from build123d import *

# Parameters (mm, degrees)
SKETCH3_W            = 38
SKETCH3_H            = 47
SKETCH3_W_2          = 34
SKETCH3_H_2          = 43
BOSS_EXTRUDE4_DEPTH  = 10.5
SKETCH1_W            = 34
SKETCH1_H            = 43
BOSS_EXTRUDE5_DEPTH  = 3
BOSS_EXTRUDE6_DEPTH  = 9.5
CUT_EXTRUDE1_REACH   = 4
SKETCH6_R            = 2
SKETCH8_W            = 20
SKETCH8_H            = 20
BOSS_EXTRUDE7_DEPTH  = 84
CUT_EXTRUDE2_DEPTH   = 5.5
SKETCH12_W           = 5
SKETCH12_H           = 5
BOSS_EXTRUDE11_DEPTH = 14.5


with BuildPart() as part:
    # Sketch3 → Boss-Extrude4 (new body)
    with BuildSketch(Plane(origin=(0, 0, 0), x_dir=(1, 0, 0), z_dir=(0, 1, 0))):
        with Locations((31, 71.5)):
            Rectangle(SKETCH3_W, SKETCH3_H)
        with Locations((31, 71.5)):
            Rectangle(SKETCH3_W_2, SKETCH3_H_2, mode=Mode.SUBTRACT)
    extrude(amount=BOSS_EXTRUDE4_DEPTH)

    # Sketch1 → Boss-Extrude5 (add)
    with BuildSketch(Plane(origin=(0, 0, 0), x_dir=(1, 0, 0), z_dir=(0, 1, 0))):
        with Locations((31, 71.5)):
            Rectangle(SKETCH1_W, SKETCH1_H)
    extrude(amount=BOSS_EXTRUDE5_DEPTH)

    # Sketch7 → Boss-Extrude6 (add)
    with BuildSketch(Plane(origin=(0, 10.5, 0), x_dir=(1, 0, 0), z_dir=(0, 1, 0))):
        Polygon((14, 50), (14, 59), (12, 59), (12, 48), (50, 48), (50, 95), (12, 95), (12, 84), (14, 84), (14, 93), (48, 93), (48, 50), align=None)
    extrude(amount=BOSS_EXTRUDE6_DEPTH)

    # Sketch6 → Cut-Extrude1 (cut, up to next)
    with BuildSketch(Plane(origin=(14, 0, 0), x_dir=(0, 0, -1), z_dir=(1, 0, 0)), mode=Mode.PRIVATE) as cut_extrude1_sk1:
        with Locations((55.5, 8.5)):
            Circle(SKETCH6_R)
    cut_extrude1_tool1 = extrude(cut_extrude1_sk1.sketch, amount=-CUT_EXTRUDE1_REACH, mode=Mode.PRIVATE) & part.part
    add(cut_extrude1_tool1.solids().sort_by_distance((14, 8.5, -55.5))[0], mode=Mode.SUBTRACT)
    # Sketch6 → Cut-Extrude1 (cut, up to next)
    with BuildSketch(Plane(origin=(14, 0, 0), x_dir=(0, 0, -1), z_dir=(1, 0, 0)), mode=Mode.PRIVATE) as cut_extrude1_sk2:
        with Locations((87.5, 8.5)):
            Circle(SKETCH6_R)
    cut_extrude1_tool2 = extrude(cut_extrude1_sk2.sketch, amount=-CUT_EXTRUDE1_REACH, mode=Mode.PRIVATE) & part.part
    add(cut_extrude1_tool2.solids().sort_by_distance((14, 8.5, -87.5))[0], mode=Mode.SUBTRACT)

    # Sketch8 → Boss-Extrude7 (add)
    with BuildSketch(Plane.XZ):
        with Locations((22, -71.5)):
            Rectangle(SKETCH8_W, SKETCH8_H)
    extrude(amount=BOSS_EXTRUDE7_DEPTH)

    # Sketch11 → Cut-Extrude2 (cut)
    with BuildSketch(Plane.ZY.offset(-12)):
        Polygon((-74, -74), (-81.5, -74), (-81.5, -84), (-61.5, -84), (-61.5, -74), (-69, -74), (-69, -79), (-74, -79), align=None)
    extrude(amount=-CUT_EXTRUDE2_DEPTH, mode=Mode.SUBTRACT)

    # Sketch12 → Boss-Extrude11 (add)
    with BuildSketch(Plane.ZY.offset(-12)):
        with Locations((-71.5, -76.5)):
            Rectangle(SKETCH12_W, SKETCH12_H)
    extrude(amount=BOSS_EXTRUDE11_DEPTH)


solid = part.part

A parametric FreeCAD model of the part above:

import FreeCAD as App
import Part
import Sketcher
from FreeCAD import Vector
Q = App.Units.Quantity


def add_polygon(sketch, points):
    """Adds a closed chain of lines whose ends are joined by coincident constraints."""
    first, n = sketch.GeometryCount, len(points)
    for a, b in zip(points, points[1:] + points[:1]):
        sketch.addGeometry(Part.LineSegment(App.Vector(*a, 0), App.Vector(*b, 0)), False)
    for i in range(n):
        sketch.addConstraint(Sketcher.Constraint("Coincident", first + i, 2, first + (i + 1) % n, 1))

doc = App.newDocument("Part")
body = doc.addObject("PartDesign::Body", "Body")

# Sketch on XZ plane
sketch1 = body.newObject("Sketcher::SketchObject", "Sketch")
sketch1.AttachmentSupport = (doc.getObject("XZ_Plane"), [""])
sketch1.MapMode = "FlatFace"
add_polygon(sketch1, [(12, -95), (12, -48), (50, -48), (50, -95)])  # lines 0-3
add_polygon(sketch1, [(48, -50), (14, -50), (14, -93), (48, -93)])  # lines 4-7
sketch1.addConstraint(Sketcher.Constraint("Vertical", 0))
sketch1.addConstraint(Sketcher.Constraint("Horizontal", 1))
sketch1.addConstraint(Sketcher.Constraint("Vertical", 2))
sketch1.addConstraint(Sketcher.Constraint("Horizontal", 3))
sketch1.addConstraint(Sketcher.Constraint("Horizontal", 4))
sketch1.addConstraint(Sketcher.Constraint("Vertical", 5))
sketch1.addConstraint(Sketcher.Constraint("Horizontal", 6))
sketch1.addConstraint(Sketcher.Constraint("Vertical", 7))
sketch1.addConstraint(Sketcher.Constraint("DistanceX", 1, 1, 1, 2, Q("38 mm")))
sketch1.addConstraint(Sketcher.Constraint("DistanceX", 4, 2, 4, 1, Q("34 mm")))
sketch1.addConstraint(Sketcher.Constraint("DistanceY", 0, 1, 0, 2, Q("47 mm")))
sketch1.addConstraint(Sketcher.Constraint("DistanceY", 5, 2, 5, 1, Q("43 mm")))
sketch1.addConstraint(Sketcher.Constraint("DistanceX", -1, 1, 0, 2, Q("12 mm")))
sketch1.addConstraint(Sketcher.Constraint("DistanceY", 0, 2, -1, 1, Q("48 mm")))
sketch1.addConstraint(Sketcher.Constraint("DistanceX", -1, 1, 4, 2, Q("14 mm")))
sketch1.addConstraint(Sketcher.Constraint("DistanceY", 4, 2, -1, 1, Q("50 mm")))
pad1 = body.newObject("PartDesign::Pad", "Pad")
pad1.Profile = sketch1
pad1.Length = 10.5
pad1.Reversed = True

# Sketch on XZ plane
sketch2 = body.newObject("Sketcher::SketchObject", "Sketch001")
sketch2.AttachmentSupport = (doc.getObject("XZ_Plane"), [""])
sketch2.MapMode = "FlatFace"
add_polygon(sketch2, [(14, -93), (14, -50), (48, -50), (48, -93)])  # lines 0-3
sketch2.addConstraint(Sketcher.Constraint("Vertical", 0))
sketch2.addConstraint(Sketcher.Constraint("Horizontal", 1))
sketch2.addConstraint(Sketcher.Constraint("Vertical", 2))
sketch2.addConstraint(Sketcher.Constraint("Horizontal", 3))
sketch2.addConstraint(Sketcher.Constraint("DistanceX", 1, 1, 1, 2, Q("34 mm")))
sketch2.addConstraint(Sketcher.Constraint("DistanceY", 0, 1, 0, 2, Q("43 mm")))
sketch2.addConstraint(Sketcher.Constraint("DistanceX", -1, 1, 0, 2, Q("14 mm")))
sketch2.addConstraint(Sketcher.Constraint("DistanceY", 0, 2, -1, 1, Q("50 mm")))
pad2 = body.newObject("PartDesign::Pad", "Pad001")
pad2.Profile = sketch2
pad2.Length = 3
pad2.Reversed = True

# Sketch on XZ plane
sketch3 = body.newObject("Sketcher::SketchObject", "Sketch002")
sketch3.AttachmentSupport = (doc.getObject("XZ_Plane"), [""])
sketch3.MapMode = "FlatFace"
sketch3.AttachmentOffset = App.Placement(Vector(0, 0, -10.5), App.Rotation())
add_polygon(sketch3, [(14, -50), (14, -59), (12, -59), (12, -48), (50, -48), (50, -95), (12, -95), (12, -84), (14, -84), (14, -93), (48, -93), (48, -50)])  # lines 0-11
sketch3.addConstraint(Sketcher.Constraint("Vertical", 0))
sketch3.addConstraint(Sketcher.Constraint("Horizontal", 1))
sketch3.addConstraint(Sketcher.Constraint("Vertical", 2))
sketch3.addConstraint(Sketcher.Constraint("Horizontal", 3))
sketch3.addConstraint(Sketcher.Constraint("Vertical", 4))
sketch3.addConstraint(Sketcher.Constraint("Horizontal", 5))
sketch3.addConstraint(Sketcher.Constraint("Vertical", 6))
sketch3.addConstraint(Sketcher.Constraint("Horizontal", 7))
sketch3.addConstraint(Sketcher.Constraint("Vertical", 8))
sketch3.addConstraint(Sketcher.Constraint("Horizontal", 9))
sketch3.addConstraint(Sketcher.Constraint("Vertical", 10))
sketch3.addConstraint(Sketcher.Constraint("Horizontal", 11))
sketch3.addConstraint(Sketcher.Constraint("Vertical", 2, 2, 5, 2))
sketch3.addConstraint(Sketcher.Constraint("Vertical", 0, 2, 7, 2))
sketch3.addConstraint(Sketcher.Constraint("Equal", 2, 6))
sketch3.addConstraint(Sketcher.Constraint("Equal", 0, 8))
sketch3.addConstraint(Sketcher.Constraint("DistanceX", 1, 2, 1, 1, Q("2 mm")))
sketch3.addConstraint(Sketcher.Constraint("DistanceX", 3, 1, 3, 2, Q("38 mm")))
sketch3.addConstraint(Sketcher.Constraint("DistanceX", 9, 1, 9, 2, Q("34 mm")))
sketch3.addConstraint(Sketcher.Constraint("DistanceY", 0, 2, 0, 1, Q("9 mm")))
sketch3.addConstraint(Sketcher.Constraint("DistanceY", 2, 1, 2, 2, Q("11 mm")))
sketch3.addConstraint(Sketcher.Constraint("DistanceY", 4, 2, 4, 1, Q("47 mm")))
sketch3.addConstraint(Sketcher.Constraint("DistanceX", -1, 1, 0, 2, Q("14 mm")))
sketch3.addConstraint(Sketcher.Constraint("DistanceY", 0, 2, -1, 1, Q("59 mm")))
pad3 = body.newObject("PartDesign::Pad", "Pad002")
pad3.Profile = sketch3
pad3.Length = 9.5
pad3.Reversed = True

# Sketch on YZ plane
sketch4 = body.newObject("Sketcher::SketchObject", "Sketch003")
sketch4.AttachmentSupport = (doc.getObject("YZ_Plane"), [""])
sketch4.MapMode = "FlatFace"
sketch4.AttachmentOffset = App.Placement(Vector(0, 0, 14), App.Rotation())
sketch4.addGeometry(Part.Circle(Vector(8.5, -55.5, 0), Vector(0, 0, 1), 2), False)
sketch4.addConstraint(Sketcher.Constraint("Diameter", 0, Q("4 mm")))
sketch4.addConstraint(Sketcher.Constraint("DistanceX", -1, 1, 0, 3, Q("8.5 mm")))
sketch4.addConstraint(Sketcher.Constraint("DistanceY", 0, 3, -1, 1, Q("55.5 mm")))
pocket1 = body.newObject("PartDesign::Pocket", "Pocket")
pocket1.Profile = sketch4
pocket1.Type = "UpToFirst"

# Sketch on YZ plane
sketch5 = body.newObject("Sketcher::SketchObject", "Sketch004")
sketch5.AttachmentSupport = (doc.getObject("YZ_Plane"), [""])
sketch5.MapMode = "FlatFace"
sketch5.AttachmentOffset = App.Placement(Vector(0, 0, 14), App.Rotation())
sketch5.addGeometry(Part.Circle(Vector(8.5, -87.5, 0), Vector(0, 0, 1), 2), False)
sketch5.addConstraint(Sketcher.Constraint("Diameter", 0, Q("4 mm")))
sketch5.addConstraint(Sketcher.Constraint("DistanceX", -1, 1, 0, 3, Q("8.5 mm")))
sketch5.addConstraint(Sketcher.Constraint("DistanceY", 0, 3, -1, 1, Q("87.5 mm")))
pocket2 = body.newObject("PartDesign::Pocket", "Pocket001")
pocket2.Profile = sketch5
pocket2.Type = "UpToFirst"

# Sketch on XZ plane
sketch6 = body.newObject("Sketcher::SketchObject", "Sketch005")
sketch6.AttachmentSupport = (doc.getObject("XZ_Plane"), [""])
sketch6.MapMode = "FlatFace"
add_polygon(sketch6, [(12, -62), (12, -82), (32, -82), (32, -62)])  # lines 0-3
sketch6.addConstraint(Sketcher.Constraint("Vertical", 0))
sketch6.addConstraint(Sketcher.Constraint("Horizontal", 1))
sketch6.addConstraint(Sketcher.Constraint("Vertical", 2))
sketch6.addConstraint(Sketcher.Constraint("Horizontal", 3))
sketch6.addConstraint(Sketcher.Constraint("Equal", 3, 0))
sketch6.addConstraint(Sketcher.Constraint("DistanceX", 1, 1, 1, 2, Q("20 mm")))
sketch6.addConstraint(Sketcher.Constraint("DistanceX", -1, 1, 0, 2, Q("12 mm")))
sketch6.addConstraint(Sketcher.Constraint("DistanceY", 0, 2, -1, 1, Q("81.5 mm")))
pad4 = body.newObject("PartDesign::Pad", "Pad003")
pad4.Profile = sketch6
pad4.Length = 84

# Sketch on YZ plane
sketch7 = body.newObject("Sketcher::SketchObject", "Sketch006")
sketch7.AttachmentSupport = (doc.getObject("YZ_Plane"), [""])
sketch7.MapMode = "FlatFace"
sketch7.AttachmentOffset = App.Placement(Vector(0, 0, 12), App.Rotation())
add_polygon(sketch7, [(-74, -74), (-74, -82), (-84, -82), (-84, -62), (-74, -62), (-74, -69), (-79, -69), (-79, -74)])  # lines 0-7
sketch7.addConstraint(Sketcher.Constraint("Vertical", 0))
sketch7.addConstraint(Sketcher.Constraint("Horizontal", 1))
sketch7.addConstraint(Sketcher.Constraint("Vertical", 2))
sketch7.addConstraint(Sketcher.Constraint("Horizontal", 3))
sketch7.addConstraint(Sketcher.Constraint("Vertical", 4))
sketch7.addConstraint(Sketcher.Constraint("Horizontal", 5))
sketch7.addConstraint(Sketcher.Constraint("Vertical", 6))
sketch7.addConstraint(Sketcher.Constraint("Horizontal", 7))
sketch7.addConstraint(Sketcher.Constraint("Vertical", 0, 2, 3, 2))
sketch7.addConstraint(Sketcher.Constraint("Equal", 0, 4))
sketch7.addConstraint(Sketcher.Constraint("Equal", 7, 6))
sketch7.addConstraint(Sketcher.Constraint("DistanceX", 1, 2, 1, 1, Q("10 mm")))
sketch7.addConstraint(Sketcher.Constraint("DistanceX", 5, 2, 5, 1, Q("5 mm")))
sketch7.addConstraint(Sketcher.Constraint("DistanceY", 2, 1, 2, 2, Q("20 mm")))
sketch7.addConstraint(Sketcher.Constraint("DistanceX", 0, 2, -1, 1, Q("74 mm")))
sketch7.addConstraint(Sketcher.Constraint("DistanceY", 4, 2, -1, 1, Q("69 mm")))
pocket3 = body.newObject("PartDesign::Pocket", "Pocket002")
pocket3.Profile = sketch7
pocket3.Length = 5.5
pocket3.Reversed = True

# Sketch on YZ plane
sketch8 = body.newObject("Sketcher::SketchObject", "Sketch007")
sketch8.AttachmentSupport = (doc.getObject("YZ_Plane"), [""])
sketch8.MapMode = "FlatFace"
sketch8.AttachmentOffset = App.Placement(Vector(0, 0, 12), App.Rotation())
add_polygon(sketch8, [(-74, -74), (-79, -74), (-79, -69), (-74, -69)])  # lines 0-3
sketch8.addConstraint(Sketcher.Constraint("Horizontal", 0))
sketch8.addConstraint(Sketcher.Constraint("Vertical", 1))
sketch8.addConstraint(Sketcher.Constraint("Horizontal", 2))
sketch8.addConstraint(Sketcher.Constraint("Vertical", 3))
sketch8.addConstraint(Sketcher.Constraint("Equal", 2, 1))
sketch8.addConstraint(Sketcher.Constraint("DistanceX", 0, 2, 0, 1, Q("5 mm")))
sketch8.addConstraint(Sketcher.Constraint("DistanceX", 0, 2, -1, 1, Q("79 mm")))
sketch8.addConstraint(Sketcher.Constraint("DistanceY", 0, 2, -1, 1, Q("74 mm")))
pad5 = body.newObject("PartDesign::Pad", "Pad004")
pad5.Profile = sketch8
pad5.Length = 14.5
pad5.Reversed = True

doc.recompute()
